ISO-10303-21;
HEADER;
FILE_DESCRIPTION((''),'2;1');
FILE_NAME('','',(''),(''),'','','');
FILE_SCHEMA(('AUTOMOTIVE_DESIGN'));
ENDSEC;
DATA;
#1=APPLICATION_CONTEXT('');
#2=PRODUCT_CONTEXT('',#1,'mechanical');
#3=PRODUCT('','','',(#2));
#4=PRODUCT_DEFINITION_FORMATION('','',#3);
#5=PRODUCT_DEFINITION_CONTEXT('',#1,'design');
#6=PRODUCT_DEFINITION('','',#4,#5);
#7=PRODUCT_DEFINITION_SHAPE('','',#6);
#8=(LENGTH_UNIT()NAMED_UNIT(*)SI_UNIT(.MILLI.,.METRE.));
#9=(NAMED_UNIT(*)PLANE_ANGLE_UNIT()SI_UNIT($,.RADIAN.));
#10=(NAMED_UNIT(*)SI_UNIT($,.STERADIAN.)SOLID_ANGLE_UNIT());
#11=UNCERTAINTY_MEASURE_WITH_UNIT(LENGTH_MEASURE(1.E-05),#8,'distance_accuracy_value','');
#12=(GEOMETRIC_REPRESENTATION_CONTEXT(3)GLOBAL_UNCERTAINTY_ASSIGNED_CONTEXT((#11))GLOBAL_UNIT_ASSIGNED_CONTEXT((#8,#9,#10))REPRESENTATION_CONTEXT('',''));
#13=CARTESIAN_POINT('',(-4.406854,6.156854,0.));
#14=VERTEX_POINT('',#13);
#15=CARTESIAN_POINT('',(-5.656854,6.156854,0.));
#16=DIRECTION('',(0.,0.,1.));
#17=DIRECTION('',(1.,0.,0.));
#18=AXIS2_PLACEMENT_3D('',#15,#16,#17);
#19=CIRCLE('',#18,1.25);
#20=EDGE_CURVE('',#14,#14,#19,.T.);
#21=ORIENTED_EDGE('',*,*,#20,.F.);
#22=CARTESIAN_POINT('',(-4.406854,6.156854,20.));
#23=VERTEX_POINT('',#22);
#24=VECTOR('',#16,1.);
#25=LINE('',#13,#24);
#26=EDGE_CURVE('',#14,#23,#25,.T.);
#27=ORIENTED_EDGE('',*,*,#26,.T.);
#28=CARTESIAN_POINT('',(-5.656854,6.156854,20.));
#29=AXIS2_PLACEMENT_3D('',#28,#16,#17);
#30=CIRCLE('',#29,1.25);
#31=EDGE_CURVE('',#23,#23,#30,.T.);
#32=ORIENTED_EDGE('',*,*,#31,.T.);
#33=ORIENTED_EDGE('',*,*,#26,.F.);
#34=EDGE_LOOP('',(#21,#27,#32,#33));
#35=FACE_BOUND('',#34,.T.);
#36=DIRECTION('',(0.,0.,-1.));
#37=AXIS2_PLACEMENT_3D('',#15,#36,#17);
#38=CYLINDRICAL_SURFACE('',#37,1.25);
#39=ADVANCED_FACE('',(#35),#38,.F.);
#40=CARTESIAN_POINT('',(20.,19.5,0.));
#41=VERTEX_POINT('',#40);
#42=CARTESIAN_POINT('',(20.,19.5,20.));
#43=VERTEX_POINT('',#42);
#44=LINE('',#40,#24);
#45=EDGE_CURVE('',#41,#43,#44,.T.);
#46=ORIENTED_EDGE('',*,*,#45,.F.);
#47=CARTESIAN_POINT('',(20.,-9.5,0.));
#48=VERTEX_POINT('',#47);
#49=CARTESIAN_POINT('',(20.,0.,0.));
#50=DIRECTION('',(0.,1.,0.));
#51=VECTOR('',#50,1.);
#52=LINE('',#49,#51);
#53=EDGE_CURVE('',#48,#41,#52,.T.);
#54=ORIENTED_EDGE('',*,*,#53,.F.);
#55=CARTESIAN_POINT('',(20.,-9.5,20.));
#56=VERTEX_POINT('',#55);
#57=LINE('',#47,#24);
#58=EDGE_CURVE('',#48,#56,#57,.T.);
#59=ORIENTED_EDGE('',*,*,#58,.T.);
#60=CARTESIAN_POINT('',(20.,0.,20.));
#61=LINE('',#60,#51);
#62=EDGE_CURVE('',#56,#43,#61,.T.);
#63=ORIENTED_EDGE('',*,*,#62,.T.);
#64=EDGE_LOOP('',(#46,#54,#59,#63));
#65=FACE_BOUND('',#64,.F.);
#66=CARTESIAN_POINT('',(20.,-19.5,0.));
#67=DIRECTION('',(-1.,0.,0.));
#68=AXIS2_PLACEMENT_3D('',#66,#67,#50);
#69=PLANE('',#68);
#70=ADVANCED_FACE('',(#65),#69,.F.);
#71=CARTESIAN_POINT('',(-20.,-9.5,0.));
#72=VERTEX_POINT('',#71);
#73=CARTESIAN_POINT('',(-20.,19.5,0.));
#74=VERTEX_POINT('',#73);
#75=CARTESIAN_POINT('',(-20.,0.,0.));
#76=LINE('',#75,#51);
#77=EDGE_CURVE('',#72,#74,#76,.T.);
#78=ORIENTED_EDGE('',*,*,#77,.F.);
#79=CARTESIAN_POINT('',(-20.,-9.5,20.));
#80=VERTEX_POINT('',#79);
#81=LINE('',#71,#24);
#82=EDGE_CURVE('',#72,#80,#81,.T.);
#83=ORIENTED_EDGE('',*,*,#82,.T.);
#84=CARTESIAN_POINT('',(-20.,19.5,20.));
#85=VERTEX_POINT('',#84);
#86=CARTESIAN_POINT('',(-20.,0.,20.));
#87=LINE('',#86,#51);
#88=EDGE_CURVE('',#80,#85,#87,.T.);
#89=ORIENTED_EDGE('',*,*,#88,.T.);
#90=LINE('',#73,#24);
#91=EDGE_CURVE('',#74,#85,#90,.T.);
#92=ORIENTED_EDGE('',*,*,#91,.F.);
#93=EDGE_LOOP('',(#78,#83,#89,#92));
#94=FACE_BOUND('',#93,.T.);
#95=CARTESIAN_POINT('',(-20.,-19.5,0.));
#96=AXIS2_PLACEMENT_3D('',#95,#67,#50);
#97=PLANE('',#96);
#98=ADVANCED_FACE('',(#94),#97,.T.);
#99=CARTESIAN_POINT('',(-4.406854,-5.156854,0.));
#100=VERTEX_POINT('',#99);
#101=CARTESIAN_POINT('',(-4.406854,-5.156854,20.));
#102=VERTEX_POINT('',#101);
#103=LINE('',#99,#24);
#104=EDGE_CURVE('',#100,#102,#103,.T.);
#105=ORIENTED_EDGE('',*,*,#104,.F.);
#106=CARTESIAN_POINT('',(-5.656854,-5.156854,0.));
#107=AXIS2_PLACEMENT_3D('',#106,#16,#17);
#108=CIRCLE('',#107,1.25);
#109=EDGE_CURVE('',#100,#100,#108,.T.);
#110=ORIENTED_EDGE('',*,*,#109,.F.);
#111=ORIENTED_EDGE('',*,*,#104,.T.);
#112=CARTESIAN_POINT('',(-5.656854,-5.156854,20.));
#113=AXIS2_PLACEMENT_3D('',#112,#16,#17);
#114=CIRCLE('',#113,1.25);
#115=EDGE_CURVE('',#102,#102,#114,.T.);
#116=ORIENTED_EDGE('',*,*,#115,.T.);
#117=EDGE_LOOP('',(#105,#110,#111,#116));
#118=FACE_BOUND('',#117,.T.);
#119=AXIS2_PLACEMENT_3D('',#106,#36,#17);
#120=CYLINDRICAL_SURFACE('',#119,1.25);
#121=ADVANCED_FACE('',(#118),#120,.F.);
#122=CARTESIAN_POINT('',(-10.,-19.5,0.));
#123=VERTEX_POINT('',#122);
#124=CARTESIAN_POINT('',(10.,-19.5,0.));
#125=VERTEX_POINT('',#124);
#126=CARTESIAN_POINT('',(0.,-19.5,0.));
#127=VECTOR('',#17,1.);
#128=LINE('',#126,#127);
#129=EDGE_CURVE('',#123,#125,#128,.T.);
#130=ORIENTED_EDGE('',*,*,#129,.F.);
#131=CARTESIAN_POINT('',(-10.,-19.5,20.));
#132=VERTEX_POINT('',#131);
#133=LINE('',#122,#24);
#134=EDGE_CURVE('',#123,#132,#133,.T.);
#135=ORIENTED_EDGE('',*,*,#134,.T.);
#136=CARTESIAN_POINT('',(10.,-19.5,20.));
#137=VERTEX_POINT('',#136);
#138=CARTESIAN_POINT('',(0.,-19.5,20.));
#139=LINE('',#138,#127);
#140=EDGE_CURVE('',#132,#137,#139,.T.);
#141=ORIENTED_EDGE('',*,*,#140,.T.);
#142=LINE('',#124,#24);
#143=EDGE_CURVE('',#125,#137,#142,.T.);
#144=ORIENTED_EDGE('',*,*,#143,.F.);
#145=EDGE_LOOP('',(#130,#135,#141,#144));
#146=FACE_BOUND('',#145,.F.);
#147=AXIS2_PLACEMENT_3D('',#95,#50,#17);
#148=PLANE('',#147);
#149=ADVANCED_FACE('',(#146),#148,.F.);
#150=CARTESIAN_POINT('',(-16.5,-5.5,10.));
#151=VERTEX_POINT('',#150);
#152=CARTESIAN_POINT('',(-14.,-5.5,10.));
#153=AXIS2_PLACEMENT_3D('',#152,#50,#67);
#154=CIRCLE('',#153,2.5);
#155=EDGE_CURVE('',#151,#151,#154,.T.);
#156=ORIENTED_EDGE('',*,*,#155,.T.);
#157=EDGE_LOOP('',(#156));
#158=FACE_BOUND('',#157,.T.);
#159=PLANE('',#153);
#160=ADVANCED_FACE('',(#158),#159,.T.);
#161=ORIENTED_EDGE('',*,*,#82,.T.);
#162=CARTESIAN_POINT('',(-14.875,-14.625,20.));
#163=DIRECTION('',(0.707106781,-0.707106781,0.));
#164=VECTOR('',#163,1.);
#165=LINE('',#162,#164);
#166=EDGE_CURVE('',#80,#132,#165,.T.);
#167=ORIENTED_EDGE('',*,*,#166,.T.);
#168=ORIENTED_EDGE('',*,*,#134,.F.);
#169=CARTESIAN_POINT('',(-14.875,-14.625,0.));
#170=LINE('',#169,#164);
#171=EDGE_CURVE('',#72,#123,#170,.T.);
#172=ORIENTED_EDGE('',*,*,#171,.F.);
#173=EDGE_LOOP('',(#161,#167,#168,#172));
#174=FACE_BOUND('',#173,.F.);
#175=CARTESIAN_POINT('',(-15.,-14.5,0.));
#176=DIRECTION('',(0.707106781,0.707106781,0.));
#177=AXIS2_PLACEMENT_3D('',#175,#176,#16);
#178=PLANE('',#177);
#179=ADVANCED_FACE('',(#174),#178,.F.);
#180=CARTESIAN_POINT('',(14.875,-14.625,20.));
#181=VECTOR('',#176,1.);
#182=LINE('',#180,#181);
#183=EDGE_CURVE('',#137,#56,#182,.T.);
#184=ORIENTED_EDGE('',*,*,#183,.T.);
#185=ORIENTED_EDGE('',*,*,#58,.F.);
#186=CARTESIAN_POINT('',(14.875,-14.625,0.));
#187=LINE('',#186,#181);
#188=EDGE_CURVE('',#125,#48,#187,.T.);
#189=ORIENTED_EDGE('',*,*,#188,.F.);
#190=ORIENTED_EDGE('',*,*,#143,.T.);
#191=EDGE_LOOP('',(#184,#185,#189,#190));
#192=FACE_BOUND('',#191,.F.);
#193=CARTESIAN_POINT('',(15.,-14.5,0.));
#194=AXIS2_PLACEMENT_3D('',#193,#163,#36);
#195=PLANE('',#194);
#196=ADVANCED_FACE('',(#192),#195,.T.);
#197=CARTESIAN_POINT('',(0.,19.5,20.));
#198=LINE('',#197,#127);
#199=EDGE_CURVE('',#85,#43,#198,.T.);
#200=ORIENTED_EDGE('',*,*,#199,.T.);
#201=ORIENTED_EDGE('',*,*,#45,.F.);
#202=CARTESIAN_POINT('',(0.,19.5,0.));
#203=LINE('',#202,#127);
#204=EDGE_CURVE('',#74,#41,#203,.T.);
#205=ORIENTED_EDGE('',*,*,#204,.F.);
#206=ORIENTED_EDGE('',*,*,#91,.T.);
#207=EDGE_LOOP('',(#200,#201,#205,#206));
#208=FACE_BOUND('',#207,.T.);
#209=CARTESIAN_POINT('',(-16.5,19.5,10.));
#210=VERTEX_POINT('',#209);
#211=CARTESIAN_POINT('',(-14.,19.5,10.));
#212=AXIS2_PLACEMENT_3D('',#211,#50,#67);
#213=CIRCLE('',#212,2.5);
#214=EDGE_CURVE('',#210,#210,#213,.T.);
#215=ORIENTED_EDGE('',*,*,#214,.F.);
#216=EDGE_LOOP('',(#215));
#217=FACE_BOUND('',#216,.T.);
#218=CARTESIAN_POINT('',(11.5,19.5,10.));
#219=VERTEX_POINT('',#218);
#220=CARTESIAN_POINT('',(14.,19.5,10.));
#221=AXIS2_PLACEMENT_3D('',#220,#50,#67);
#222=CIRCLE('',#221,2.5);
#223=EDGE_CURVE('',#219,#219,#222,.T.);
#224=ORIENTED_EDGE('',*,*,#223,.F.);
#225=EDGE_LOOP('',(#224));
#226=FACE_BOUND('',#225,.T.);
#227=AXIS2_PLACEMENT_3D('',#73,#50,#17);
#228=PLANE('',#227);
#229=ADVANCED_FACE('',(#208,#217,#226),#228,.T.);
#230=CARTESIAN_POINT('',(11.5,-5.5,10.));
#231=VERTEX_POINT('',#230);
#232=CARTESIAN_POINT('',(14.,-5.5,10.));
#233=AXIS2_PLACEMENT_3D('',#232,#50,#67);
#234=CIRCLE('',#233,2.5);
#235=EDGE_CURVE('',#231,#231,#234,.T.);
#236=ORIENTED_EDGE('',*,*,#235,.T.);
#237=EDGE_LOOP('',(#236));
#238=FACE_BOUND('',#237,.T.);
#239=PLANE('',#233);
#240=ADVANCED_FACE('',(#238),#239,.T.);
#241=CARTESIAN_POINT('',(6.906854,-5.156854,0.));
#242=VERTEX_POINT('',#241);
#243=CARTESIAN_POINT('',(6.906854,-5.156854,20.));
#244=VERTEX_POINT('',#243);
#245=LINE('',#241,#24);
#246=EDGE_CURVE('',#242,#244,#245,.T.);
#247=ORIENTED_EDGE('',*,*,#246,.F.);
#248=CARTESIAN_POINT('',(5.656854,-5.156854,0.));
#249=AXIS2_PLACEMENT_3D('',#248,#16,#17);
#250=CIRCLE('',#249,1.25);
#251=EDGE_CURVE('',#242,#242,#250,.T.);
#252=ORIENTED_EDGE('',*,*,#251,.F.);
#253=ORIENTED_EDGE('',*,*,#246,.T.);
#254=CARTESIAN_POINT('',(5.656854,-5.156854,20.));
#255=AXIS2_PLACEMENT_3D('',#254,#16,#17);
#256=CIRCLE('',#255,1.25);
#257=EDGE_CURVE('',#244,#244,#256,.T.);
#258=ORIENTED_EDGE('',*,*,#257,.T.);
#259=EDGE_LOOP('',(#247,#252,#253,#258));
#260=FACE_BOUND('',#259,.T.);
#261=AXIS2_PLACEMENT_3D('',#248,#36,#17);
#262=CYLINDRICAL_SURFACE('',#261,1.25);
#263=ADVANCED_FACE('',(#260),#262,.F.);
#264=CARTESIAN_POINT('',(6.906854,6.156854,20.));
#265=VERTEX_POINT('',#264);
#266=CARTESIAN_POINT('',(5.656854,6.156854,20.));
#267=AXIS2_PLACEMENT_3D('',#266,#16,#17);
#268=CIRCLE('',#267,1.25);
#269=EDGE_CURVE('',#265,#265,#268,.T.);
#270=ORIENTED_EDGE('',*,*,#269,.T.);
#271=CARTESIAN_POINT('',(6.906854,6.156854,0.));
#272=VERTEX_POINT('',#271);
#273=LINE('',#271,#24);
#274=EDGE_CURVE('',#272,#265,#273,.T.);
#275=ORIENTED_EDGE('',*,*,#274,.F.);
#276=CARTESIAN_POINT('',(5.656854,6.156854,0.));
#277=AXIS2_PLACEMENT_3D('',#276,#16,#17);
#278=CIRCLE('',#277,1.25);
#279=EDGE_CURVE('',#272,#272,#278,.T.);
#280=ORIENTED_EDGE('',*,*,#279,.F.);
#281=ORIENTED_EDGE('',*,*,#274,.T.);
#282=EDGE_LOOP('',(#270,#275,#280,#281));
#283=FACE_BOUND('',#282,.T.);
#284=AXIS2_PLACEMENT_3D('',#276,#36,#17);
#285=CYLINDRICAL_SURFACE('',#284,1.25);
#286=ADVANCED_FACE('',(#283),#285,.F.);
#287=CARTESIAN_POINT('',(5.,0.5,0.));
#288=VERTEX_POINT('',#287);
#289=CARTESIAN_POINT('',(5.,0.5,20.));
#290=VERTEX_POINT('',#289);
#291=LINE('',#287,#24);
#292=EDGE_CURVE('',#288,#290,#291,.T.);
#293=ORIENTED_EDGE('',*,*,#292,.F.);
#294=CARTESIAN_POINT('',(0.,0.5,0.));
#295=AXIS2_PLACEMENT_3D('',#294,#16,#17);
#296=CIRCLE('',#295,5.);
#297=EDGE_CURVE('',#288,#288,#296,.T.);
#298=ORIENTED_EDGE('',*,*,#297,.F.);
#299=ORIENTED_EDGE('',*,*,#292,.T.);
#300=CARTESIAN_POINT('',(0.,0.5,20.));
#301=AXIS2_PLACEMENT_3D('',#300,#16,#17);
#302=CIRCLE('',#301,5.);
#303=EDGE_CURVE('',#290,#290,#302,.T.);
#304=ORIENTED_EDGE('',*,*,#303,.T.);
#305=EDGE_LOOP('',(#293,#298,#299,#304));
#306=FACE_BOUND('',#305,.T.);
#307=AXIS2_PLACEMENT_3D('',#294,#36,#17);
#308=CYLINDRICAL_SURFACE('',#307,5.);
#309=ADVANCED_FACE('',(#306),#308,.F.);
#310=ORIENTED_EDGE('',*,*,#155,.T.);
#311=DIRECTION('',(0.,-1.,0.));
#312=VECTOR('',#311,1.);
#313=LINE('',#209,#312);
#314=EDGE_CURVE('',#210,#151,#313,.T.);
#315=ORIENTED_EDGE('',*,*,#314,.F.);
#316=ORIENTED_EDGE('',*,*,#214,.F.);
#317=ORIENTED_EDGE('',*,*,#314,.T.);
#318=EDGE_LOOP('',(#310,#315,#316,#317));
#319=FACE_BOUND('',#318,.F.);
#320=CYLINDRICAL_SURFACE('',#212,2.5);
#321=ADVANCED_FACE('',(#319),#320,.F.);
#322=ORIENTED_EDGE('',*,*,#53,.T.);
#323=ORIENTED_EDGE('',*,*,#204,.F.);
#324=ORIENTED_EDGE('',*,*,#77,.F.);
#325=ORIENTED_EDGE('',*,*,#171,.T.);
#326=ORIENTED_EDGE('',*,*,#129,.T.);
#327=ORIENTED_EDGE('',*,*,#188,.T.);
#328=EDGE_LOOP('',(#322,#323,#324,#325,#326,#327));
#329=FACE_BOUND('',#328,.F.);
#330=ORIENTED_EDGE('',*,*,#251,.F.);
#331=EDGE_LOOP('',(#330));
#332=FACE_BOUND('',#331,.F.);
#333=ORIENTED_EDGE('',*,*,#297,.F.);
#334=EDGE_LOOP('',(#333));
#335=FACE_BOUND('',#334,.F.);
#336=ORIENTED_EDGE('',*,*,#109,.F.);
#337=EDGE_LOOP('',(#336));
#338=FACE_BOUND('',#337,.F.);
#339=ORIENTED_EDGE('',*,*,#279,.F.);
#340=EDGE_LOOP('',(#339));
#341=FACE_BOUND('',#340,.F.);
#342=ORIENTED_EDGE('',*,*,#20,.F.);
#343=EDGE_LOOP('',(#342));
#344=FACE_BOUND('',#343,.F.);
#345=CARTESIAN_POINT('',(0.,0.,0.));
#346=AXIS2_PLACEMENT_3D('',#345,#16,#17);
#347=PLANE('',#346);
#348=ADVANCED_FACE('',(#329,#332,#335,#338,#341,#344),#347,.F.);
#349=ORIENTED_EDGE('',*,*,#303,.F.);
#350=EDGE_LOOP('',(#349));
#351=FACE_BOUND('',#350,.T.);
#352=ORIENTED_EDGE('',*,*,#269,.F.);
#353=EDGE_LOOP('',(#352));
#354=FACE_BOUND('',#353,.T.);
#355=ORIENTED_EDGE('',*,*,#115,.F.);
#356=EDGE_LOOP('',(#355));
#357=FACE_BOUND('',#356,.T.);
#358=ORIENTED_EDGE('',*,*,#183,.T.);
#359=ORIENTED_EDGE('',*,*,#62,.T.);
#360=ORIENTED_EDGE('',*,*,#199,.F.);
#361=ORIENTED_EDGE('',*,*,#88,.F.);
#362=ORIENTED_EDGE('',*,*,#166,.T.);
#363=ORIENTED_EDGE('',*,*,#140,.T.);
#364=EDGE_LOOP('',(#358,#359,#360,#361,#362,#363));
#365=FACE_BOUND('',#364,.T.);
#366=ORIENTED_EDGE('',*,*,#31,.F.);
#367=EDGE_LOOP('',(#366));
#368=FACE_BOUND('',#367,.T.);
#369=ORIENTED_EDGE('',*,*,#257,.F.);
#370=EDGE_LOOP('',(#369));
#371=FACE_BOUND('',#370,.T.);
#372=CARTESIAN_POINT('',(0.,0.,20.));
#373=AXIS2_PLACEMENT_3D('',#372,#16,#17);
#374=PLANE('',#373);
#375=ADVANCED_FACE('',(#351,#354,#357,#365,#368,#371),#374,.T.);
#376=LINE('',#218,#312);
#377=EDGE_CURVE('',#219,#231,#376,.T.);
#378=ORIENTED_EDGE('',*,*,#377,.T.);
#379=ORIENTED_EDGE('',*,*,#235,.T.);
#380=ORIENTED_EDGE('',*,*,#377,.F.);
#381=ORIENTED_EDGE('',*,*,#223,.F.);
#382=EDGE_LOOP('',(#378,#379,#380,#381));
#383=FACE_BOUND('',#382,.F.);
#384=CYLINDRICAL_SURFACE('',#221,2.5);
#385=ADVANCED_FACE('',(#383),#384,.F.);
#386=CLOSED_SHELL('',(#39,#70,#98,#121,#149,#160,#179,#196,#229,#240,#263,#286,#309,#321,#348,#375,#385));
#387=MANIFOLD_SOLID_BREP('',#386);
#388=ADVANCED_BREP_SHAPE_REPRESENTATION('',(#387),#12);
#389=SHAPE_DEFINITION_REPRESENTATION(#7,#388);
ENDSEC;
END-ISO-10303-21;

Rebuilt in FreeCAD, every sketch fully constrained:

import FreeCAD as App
import Part
import Sketcher
Q = App.Units.Quantity


def edges_at(feature, points):
    """Names of the edges that pass closest to the given points."""
    edges = feature.Shape.Edges
    near = lambda p: min(range(len(edges)), key=lambda i: edges[i].distToShape(Part.Vertex(*p))[0])
    return sorted({f"Edge{near(p) + 1}" for p in points})

doc = App.newDocument("Part")
params = doc.addObject("Spreadsheet::Sheet", "Params")
for row, (alias, value) in enumerate([
    ("sketch1_diameter", "10 mm"),
    ("sketch1_diameter2", "2.5 mm"),
    ("sketch1_width", "40 mm"),
    ("sketch1_height", "39 mm"),
    ("pad1_length", "20 mm"),
    ("chamfer_size", "10 mm"),
    ("sketch2_diameter", "5 mm"),
    ("pocket1_length", "25 mm"),
], start=1):
    params.set(f"A{row}", alias)
    params.set(f"B{row}", "=" + value)
    params.setAlias(f"B{row}", alias)

body = doc.addObject("PartDesign::Body", "Body")

# Sketch on XY plane
sketch1 = body.newObject("Sketcher::SketchObject", "Sketch")
sketch1.AttachmentSupport = (doc.getObject("XY_Plane"), [""])
sketch1.MapMode = "FlatFace"
sketch1.addGeometry([
    Part.LineSegment(App.Vector(-20, 19.5, 0), App.Vector(-20, -19.5, 0)),  # 0
    Part.LineSegment(App.Vector(-20, -19.5, 0), App.Vector(20, -19.5, 0)),  # 1
    Part.LineSegment(App.Vector(20, -19.5, 0), App.Vector(20, 19.5, 0)),  # 2
    Part.LineSegment(App.Vector(20, 19.5, 0), App.Vector(-20, 19.5, 0)),  # 3
    Part.Circle(App.Vector(-5.7, -5.2, 0), App.Vector(0, 0, 1), 1.2),  # 4
    Part.Circle(App.Vector(5.7, -5.2, 0), App.Vector(0, 0, 1), 1.2),  # 5
    Part.Circle(App.Vector(-5.7, 6.2, 0), App.Vector(0, 0, 1), 1.2),  # 6
    Part.Circle(App.Vector(0, 0.5, 0), App.Vector(0, 0, 1), 5),  # 7
    Part.Circle(App.Vector(5.7, 6.2, 0), App.Vector(0, 0, 1), 1.2),  # 8
], False)
sketch1.addConstraint([
    Sketcher.Constraint("Coincident", 0, 2, 1, 1),
    Sketcher.Constraint("Coincident", 1, 2, 2, 1),
    Sketcher.Constraint("Coincident", 2, 2, 3, 1),
    Sketcher.Constraint("Coincident", 3, 2, 0, 1),
    Sketcher.Constraint("Vertical", 0),
    Sketcher.Constraint("Horizontal", 1),
    Sketcher.Constraint("Vertical", 2),
    Sketcher.Constraint("Horizontal", 3),
    Sketcher.Constraint("Equal", 4, 5),
    Sketcher.Constraint("Equal", 5, 6),
    Sketcher.Constraint("Equal", 6, 8),
    Sketcher.Constraint("Symmetric", 0, 2, 2, 2, -1, 1),
    Sketcher.Constraint("Symmetric", 4, 3, 5, 3, -2),
    Sketcher.Constraint("Symmetric", 6, 3, 8, 3, -2),
    Sketcher.Constraint("PointOnObject", 7, 3, -2),
    Sketcher.Constraint("Vertical", 4, 3, 6, 3),
    Sketcher.Constraint("Diameter", 7, Q("10 mm")),
    Sketcher.Constraint("Diameter", 4, Q("2.5 mm")),
    Sketcher.Constraint("DistanceX", 1, 1, 1, 2, Q("40 mm")),
    Sketcher.Constraint("DistanceY", 0, 2, 0, 1, Q("39 mm")),
    Sketcher.Constraint("DistanceY", 0, 2, 7, 3, Q("20 mm")),
    Sketcher.Constraint("DistanceX", 4, 3, -1, 1, Q("5.656854 mm")),
    Sketcher.Constraint("DistanceY", 4, 3, -1, 1, Q("5.156854 mm")),
    Sketcher.Constraint("DistanceY", -1, 1, 6, 3, Q("6.156854 mm")),
])
sketch1.setExpression("Constraints[16]", "Params.sketch1_diameter")
sketch1.setExpression("Constraints[17]", "Params.sketch1_diameter2")
sketch1.setExpression("Constraints[18]", "Params.sketch1_width")
sketch1.setExpression("Constraints[19]", "Params.sketch1_height")
pad1 = body.newObject("PartDesign::Pad", "Pad")
pad1.Profile = sketch1
pad1.setExpression("Length", "Params.pad1_length")
doc.recompute()

chamfer = body.newObject("PartDesign::Chamfer", "Chamfer")
chamfer.Base = (pad1, edges_at(pad1, [(-20, -19.5, 10), (20, -19.5, 10)]))
chamfer.setExpression("Size", "Params.chamfer_size")

# Sketch on XZ plane
sketch2 = body.newObject("Sketcher::SketchObject", "Sketch001")
sketch2.AttachmentSupport = (doc.getObject("XZ_Plane"), [""])
sketch2.MapMode = "FlatFace"
sketch2.AttachmentOffset = App.Placement(App.Vector(0, 0, -19.5), App.Rotation())
sketch2.addGeometry([
    Part.Circle(App.Vector(-14, 10, 0), App.Vector(0, 0, 1), 2.5),
    Part.Circle(App.Vector(14, 10, 0), App.Vector(0, 0, 1), 2.5),
], False)
sketch2.addConstraint([
    Sketcher.Constraint("Equal", 0, 1),
    Sketcher.Constraint("Symmetric", 0, 3, 1, 3, -2),
    Sketcher.Constraint("Diameter", 0, Q("5 mm")),
    Sketcher.Constraint("DistanceX", 0, 3, -1, 1, Q("14 mm")),
    Sketcher.Constraint("DistanceY", -1, 1, 0, 3, Q("10 mm")),
])
sketch2.setExpression("Constraints[2]", "Params.sketch2_diameter")
pocket1 = body.newObject("PartDesign::Pocket", "Pocket")
pocket1.Profile = sketch2
pocket1.setExpression("Length", "Params.pocket1_length")
pocket1.Reversed = True

doc.recompute()
